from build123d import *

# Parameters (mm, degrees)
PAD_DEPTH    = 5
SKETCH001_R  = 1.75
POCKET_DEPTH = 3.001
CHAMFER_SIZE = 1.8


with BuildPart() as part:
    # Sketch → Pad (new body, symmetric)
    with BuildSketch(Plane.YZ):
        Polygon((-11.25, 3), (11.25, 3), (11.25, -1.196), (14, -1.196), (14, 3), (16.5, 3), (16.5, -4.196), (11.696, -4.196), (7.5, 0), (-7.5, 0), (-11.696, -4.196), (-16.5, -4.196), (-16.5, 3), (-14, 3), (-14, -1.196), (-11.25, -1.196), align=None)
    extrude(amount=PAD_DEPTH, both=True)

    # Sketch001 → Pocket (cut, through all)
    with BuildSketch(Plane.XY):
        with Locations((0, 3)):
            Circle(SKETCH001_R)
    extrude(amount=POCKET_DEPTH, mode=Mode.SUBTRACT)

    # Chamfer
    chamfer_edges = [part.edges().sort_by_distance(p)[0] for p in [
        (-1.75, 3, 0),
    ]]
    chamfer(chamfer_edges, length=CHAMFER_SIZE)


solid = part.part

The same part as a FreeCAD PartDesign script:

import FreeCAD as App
import Part
import Sketcher

V = App.Vector


def edges_at(feature, points):
    """Names of the edges that pass closest to the given points."""
    edges = feature.Shape.Edges
    near = lambda p: min(range(len(edges)), key=lambda i: edges[i].distToShape(Part.Vertex(*p))[0])
    return sorted({f"Edge{near(p) + 1}" for p in points})


def add_polygon(sketch, points):
    """Adds a closed chain of lines whose ends are joined by coincident constraints."""
    first, n = sketch.GeometryCount, len(points)
    for a, b in zip(points, points[1:] + points[:1]):
        sketch.addGeometry(Part.LineSegment(App.Vector(*a, 0), App.Vector(*b, 0)), False)
    for i in range(n):
        sketch.addConstraint(Sketcher.Constraint("Coincident", first + i, 2, first + (i + 1) % n, 1))

doc = App.newDocument("Part")
body = doc.addObject("PartDesign::Body", "Body")

sketch1 = body.newObject("Sketcher::SketchObject", "Sketch")
sketch1.AttachmentSupport = (doc.getObject("YZ_Plane"), [""])
sketch1.MapMode = "FlatFace"
add_polygon(sketch1, [(11.2, 3), (-11.2, 3), (-11.2, -1.2), (-14, -1.2), (-14, 3), (-16.5, 3), (-16.5, -4.2), (-11.7, -4.2), (-7.5, 0), (7.5, 0), (11.7, -4.2), (16.5, -4.2), (16.5, 3), (14, 3), (14, -1.2), (11.2, -1.2)])
sketch1.addConstraint([
    Sketcher.Constraint("Horizontal", 0),
    Sketcher.Constraint("Vertical", 1),
    Sketcher.Constraint("Horizontal", 2),
    Sketcher.Constraint("Vertical", 3),
    Sketcher.Constraint("Horizontal", 4),
    Sketcher.Constraint("Vertical", 5),
    Sketcher.Constraint("Horizontal", 6),
    Sketcher.Constraint("Horizontal", 8),
    Sketcher.Constraint("Horizontal", 10),
    Sketcher.Constraint("Vertical", 11),
    Sketcher.Constraint("Horizontal", 12),
    Sketcher.Constraint("Vertical", 13),
    Sketcher.Constraint("Horizontal", 14),
    Sketcher.Constraint("Vertical", 15),
    Sketcher.Constraint("Symmetric", 7, 2, 8, 2, -1, 1),
    Sketcher.Constraint("Symmetric", 6, 2, 9, 2, -2),
    Sketcher.Constraint("Symmetric", 4, 2, 11, 2, -2),
    Sketcher.Constraint("Symmetric", 2, 2, 13, 2, -2),
    Sketcher.Constraint("Perpendicular", 7, 9),
    Sketcher.Constraint("Horizontal", 0, 2, 3, 2),
    Sketcher.Constraint("Equal", 2, 14),
    Sketcher.Constraint("DistanceX", 8, 1, 8, 2, 15.0),
    Sketcher.Constraint("DistanceX", 0, 2, 0, 1, 22.5),
    Sketcher.Constraint("DistanceX", 4, 2, 4, 1, 2.5),
    Sketcher.Constraint("DistanceY", -1, 1, 0, 2, 3.0),
    Sketcher.Constraint("DistanceX", 2, 2, -1, 1, 14.0),
    Sketcher.Constraint("DistanceY", 5, 2, 2, 2, 3.0),
    Sketcher.Constraint("DistanceX", 6, 1, 6, 2, 4.804),
])
pad1 = body.newObject("PartDesign::Pad", "Pad")
pad1.Profile = sketch1
pad1.Length = 10
pad1.Midplane = True

sketch2 = body.newObject("Sketcher::SketchObject", "Sketch001")
sketch2.AttachmentSupport = (doc.getObject("XY_Plane"), [""])
sketch2.MapMode = "FlatFace"
sketch2.addGeometry(Part.Circle(V(0, 3, 0), V(0, 0, 1), 1.8), False)
sketch2.addConstraint([
    Sketcher.Constraint("PointOnObject", 0, 3, -2),
    Sketcher.Constraint("Diameter", 0, 3.5),
    Sketcher.Constraint("DistanceY", -1, 1, 0, 3, 3.0),
])
pocket1 = body.newObject("PartDesign::Pocket", "Pocket")
pocket1.Profile = sketch2
pocket1.Type = "ThroughAll"
pocket1.Reversed = True
doc.recompute()

chamfer = body.newObject("PartDesign::Chamfer", "Chamfer")
chamfer.Base = (pocket1, edges_at(pocket1, [(-1.75, 3, 0)]))
chamfer.Size = 1.8

doc.recompute()
